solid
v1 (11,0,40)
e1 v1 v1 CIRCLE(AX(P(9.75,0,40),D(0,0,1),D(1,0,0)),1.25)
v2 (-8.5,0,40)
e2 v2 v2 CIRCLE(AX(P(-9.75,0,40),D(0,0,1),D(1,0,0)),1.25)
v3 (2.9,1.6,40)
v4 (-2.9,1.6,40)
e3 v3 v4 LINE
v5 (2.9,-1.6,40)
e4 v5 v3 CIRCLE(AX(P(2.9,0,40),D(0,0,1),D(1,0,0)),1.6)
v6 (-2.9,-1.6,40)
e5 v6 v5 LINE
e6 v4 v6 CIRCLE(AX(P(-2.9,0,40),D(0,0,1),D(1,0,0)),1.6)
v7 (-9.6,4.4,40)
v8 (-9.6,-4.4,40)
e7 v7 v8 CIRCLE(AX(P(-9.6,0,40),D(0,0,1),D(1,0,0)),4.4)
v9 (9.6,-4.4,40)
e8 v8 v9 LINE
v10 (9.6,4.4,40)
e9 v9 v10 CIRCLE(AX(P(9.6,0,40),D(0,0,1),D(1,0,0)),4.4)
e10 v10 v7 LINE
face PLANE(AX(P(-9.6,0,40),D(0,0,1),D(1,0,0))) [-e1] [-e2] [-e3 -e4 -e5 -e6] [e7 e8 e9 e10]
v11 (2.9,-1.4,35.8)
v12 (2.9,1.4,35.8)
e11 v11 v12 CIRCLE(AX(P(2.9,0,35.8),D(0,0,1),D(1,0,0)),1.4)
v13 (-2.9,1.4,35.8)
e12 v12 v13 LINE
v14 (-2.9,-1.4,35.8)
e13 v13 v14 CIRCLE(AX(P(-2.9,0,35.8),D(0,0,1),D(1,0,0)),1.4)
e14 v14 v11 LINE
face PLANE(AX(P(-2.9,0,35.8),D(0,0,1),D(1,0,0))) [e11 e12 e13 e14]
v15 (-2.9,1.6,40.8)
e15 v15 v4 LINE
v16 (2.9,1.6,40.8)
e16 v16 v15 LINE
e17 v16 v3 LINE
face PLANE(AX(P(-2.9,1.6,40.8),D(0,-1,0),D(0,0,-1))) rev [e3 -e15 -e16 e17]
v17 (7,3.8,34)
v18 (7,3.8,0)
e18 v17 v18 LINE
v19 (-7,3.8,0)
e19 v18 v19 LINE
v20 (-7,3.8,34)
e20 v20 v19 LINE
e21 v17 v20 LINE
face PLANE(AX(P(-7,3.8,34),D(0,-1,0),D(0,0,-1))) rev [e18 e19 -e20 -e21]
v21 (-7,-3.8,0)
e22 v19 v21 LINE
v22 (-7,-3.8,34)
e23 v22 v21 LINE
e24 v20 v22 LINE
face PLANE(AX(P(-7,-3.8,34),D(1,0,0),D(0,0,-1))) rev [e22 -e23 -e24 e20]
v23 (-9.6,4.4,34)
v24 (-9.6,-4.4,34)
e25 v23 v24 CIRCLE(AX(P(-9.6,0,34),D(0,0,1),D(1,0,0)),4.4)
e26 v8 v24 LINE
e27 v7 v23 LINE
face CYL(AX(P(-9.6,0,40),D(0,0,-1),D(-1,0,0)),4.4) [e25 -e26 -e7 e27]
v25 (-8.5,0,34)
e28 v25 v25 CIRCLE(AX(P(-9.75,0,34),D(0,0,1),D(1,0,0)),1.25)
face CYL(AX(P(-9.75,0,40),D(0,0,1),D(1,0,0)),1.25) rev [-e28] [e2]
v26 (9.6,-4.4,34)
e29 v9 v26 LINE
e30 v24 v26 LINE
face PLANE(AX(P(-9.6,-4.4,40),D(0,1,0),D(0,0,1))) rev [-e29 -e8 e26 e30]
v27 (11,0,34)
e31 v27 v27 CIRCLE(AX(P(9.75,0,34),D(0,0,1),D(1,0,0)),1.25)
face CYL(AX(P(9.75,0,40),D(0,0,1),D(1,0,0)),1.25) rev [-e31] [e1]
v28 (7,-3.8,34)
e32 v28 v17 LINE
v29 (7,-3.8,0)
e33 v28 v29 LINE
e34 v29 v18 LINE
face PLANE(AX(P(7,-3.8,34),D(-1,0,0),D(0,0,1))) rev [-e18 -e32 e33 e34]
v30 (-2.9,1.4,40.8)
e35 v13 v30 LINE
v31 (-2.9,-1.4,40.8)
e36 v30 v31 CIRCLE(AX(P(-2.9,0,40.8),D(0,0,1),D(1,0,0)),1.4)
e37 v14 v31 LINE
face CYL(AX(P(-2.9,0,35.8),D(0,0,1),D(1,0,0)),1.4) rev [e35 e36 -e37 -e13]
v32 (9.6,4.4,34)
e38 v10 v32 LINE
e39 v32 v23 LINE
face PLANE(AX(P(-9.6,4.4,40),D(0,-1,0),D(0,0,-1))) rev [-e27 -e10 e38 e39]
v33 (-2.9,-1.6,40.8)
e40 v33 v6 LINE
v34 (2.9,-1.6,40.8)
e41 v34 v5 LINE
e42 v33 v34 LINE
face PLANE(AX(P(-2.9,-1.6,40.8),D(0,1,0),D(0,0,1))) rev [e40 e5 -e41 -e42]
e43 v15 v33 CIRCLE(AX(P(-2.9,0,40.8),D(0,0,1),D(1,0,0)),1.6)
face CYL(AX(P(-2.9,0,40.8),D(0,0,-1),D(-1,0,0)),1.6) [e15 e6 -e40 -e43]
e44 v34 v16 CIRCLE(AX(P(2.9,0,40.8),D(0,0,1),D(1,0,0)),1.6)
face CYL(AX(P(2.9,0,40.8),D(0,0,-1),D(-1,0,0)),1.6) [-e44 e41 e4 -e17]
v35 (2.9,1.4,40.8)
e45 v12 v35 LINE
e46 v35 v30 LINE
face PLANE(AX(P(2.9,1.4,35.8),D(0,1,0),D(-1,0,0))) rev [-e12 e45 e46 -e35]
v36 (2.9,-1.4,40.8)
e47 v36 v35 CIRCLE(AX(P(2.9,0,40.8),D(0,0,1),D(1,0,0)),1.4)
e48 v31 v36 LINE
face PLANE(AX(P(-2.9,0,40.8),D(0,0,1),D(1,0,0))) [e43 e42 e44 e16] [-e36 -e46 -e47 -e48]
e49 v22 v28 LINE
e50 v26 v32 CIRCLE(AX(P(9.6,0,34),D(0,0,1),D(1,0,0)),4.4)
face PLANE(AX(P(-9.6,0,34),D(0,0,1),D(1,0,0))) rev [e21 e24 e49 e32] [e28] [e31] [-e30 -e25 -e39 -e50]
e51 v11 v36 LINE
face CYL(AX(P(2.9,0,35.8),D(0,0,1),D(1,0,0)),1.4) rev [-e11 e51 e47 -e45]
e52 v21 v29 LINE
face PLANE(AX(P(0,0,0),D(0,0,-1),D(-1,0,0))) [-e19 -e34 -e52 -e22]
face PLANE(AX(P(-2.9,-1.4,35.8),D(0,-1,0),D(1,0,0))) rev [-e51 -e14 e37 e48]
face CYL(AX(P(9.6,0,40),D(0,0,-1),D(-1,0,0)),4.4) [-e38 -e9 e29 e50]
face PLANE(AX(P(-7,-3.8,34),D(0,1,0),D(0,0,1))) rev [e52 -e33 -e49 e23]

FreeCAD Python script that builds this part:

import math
import FreeCAD as App
import Part
import Sketcher

V = App.Vector

doc = App.newDocument("Part")
body = doc.addObject("PartDesign::Body", "Body")

# Sketch on XY plane
sketch1 = body.newObject("Sketcher::SketchObject", "Sketch")
sketch1.AttachmentSupport = (doc.getObject("XY_Plane"), [""])
sketch1.MapMode = "FlatFace"
sketch1.addGeometry(Part.LineSegment(V(-7, 3.8, 0), V(-7, -3.8, 0)), False)
sketch1.addGeometry(Part.LineSegment(V(-7, -3.8, 0), V(7, -3.8, 0)), False)
sketch1.addGeometry(Part.LineSegment(V(7, -3.8, 0), V(7, 3.8, 0)), False)
sketch1.addGeometry(Part.LineSegment(V(7, 3.8, 0), V(-7, 3.8, 0)), False)
sketch1.addConstraint(Sketcher.Constraint("Coincident", 0, 2, 1, 1))
sketch1.addConstraint(Sketcher.Constraint("Coincident", 1, 2, 2, 1))
sketch1.addConstraint(Sketcher.Constraint("Coincident", 2, 2, 3, 1))
sketch1.addConstraint(Sketcher.Constraint("Coincident", 3, 2, 0, 1))
sketch1.addConstraint(Sketcher.Constraint("Vertical", 0))
sketch1.addConstraint(Sketcher.Constraint("Horizontal", 1))
sketch1.addConstraint(Sketcher.Constraint("Vertical", 2))
sketch1.addConstraint(Sketcher.Constraint("Horizontal", 3))
sketch1.addConstraint(Sketcher.Constraint("Symmetric", 0, 2, 2, 2, -1, 1))
sketch1.addConstraint(Sketcher.Constraint("DistanceX", 1, 1, 1, 2, 14.0))
sketch1.addConstraint(Sketcher.Constraint("DistanceY", 0, 2, 0, 1, 7.6))
pad1 = body.newObject("PartDesign::Pad", "Pad")
pad1.Profile = sketch1
pad1.Length = 34

# Sketch on XY plane
sketch2 = body.newObject("Sketcher::SketchObject", "Sketch001")
sketch2.AttachmentSupport = (doc.getObject("XY_Plane"), [""])
sketch2.MapMode = "FlatFace"
sketch2.AttachmentOffset = App.Placement(V(0, 0, 34), App.Rotation())
sketch2.addGeometry(Part.LineSegment(V(9.6, 4.4, 0), V(-9.6, 4.4, 0)), False)
sketch2.addGeometry(Part.ArcOfCircle(Part.Circle(V(-9.6, 0, 0), V(0, 0, 1), 4.4), math.radians(90), math.radians(270)), False)
sketch2.addGeometry(Part.LineSegment(V(-9.6, -4.4, 0), V(9.6, -4.4, 0)), False)
sketch2.addGeometry(Part.ArcOfCircle(Part.Circle(V(9.6, 0, 0), V(0, 0, 1), 4.4), math.radians(-90), math.radians(90)), False)
sketch2.addConstraint(Sketcher.Constraint("Tangent", 0, 2, 1, 1))
sketch2.addConstraint(Sketcher.Constraint("Tangent", 1, 2, 2, 1))
sketch2.addConstraint(Sketcher.Constraint("Tangent", 2, 2, 3, 1))
sketch2.addConstraint(Sketcher.Constraint("Tangent", 3, 2, 0, 1))
sketch2.addConstraint(Sketcher.Constraint("Horizontal", 0))
sketch2.addConstraint(Sketcher.Constraint("Horizontal", 2))
sketch2.addConstraint(Sketcher.Constraint("Symmetric", 1, 3, 3, 3, -1, 1))
sketch2.addConstraint(Sketcher.Constraint("Radius", 1, 4.4))
sketch2.addConstraint(Sketcher.Constraint("DistanceX", 0, 2, 0, 1, 19.2))
pad2 = body.newObject("PartDesign::Pad", "Pad001")
pad2.Profile = sketch2
pad2.Length = 6

# Sketch on XY plane
sketch3 = body.newObject("Sketcher::SketchObject", "Sketch002")
sketch3.AttachmentSupport = (doc.getObject("XY_Plane"), [""])
sketch3.MapMode = "FlatFace"
sketch3.AttachmentOffset = App.Placement(V(0, 0, 40), App.Rotation())
sketch3.addGeometry(Part.LineSegment(V(2.9, 1.6, 0), V(-2.9, 1.6, 0)), False)
sketch3.addGeometry(Part.ArcOfCircle(Part.Circle(V(-2.9, 0, 0), V(0, 0, 1), 1.6), math.radians(90), math.radians(270)), False)
sketch3.addGeometry(Part.LineSegment(V(-2.9, -1.6, 0), V(2.9, -1.6, 0)), False)
sketch3.addGeometry(Part.ArcOfCircle(Part.Circle(V(2.9, 0, 0), V(0, 0, 1), 1.6), math.radians(-90), math.radians(90)), False)
sketch3.addConstraint(Sketcher.Constraint("Tangent", 0, 2, 1, 1))
sketch3.addConstraint(Sketcher.Constraint("Tangent", 1, 2, 2, 1))
sketch3.addConstraint(Sketcher.Constraint("Tangent", 2, 2, 3, 1))
sketch3.addConstraint(Sketcher.Constraint("Tangent", 3, 2, 0, 1))
sketch3.addConstraint(Sketcher.Constraint("Horizontal", 0))
sketch3.addConstraint(Sketcher.Constraint("Horizontal", 2))
sketch3.addConstraint(Sketcher.Constraint("Symmetric", 1, 3, 3, 3, -1, 1))
sketch3.addConstraint(Sketcher.Constraint("Radius", 1, 1.6))
sketch3.addConstraint(Sketcher.Constraint("DistanceX", 0, 2, 0, 1, 5.8))
pad3 = body.newObject("PartDesign::Pad", "Pad002")
pad3.Profile = sketch3
pad3.Length = 0.8

# Sketch on XY plane
sketch4 = body.newObject("Sketcher::SketchObject", "Sketch003")
sketch4.AttachmentSupport = (doc.getObject("XY_Plane"), [""])
sketch4.MapMode = "FlatFace"
sketch4.AttachmentOffset = App.Placement(V(0, 0, 40.8), App.Rotation())
sketch4.addGeometry(Part.LineSegment(V(-2.9, -1.4, 0), V(2.9, -1.4, 0)), False)
sketch4.addGeometry(Part.ArcOfCircle(Part.Circle(V(2.9, 0, 0), V(0, 0, 1), 1.4), math.radians(-90), math.radians(90)), False)
sketch4.addGeometry(Part.LineSegment(V(2.9, 1.4, 0), V(-2.9, 1.4, 0)), False)
sketch4.addGeometry(Part.ArcOfCircle(Part.Circle(V(-2.9, 0, 0), V(0, 0, 1), 1.4), math.radians(90), math.radians(270)), False)
sketch4.addConstraint(Sketcher.Constraint("Tangent", 0, 2, 1, 1))
sketch4.addConstraint(Sketcher.Constraint("Tangent", 1, 2, 2, 1))
sketch4.addConstraint(Sketcher.Constraint("Tangent", 2, 2, 3, 1))
sketch4.addConstraint(Sketcher.Constraint("Tangent", 3, 2, 0, 1))
sketch4.addConstraint(Sketcher.Constraint("Horizontal", 0))
sketch4.addConstraint(Sketcher.Constraint("Horizontal", 2))
sketch4.addConstraint(Sketcher.Constraint("Symmetric", 1, 3, 3, 3, -1, 1))
sketch4.addConstraint(Sketcher.Constraint("Radius", 1, 1.4))
sketch4.addConstraint(Sketcher.Constraint("DistanceX", 0, 1, 0, 2, 5.8))
pocket1 = body.newObject("PartDesign::Pocket", "Pocket")
pocket1.Profile = sketch4
pocket1.Length = 5

# Sketch on XY plane
sketch5 = body.newObject("Sketcher::SketchObject", "Sketch004")
sketch5.AttachmentSupport = (doc.getObject("XY_Plane"), [""])
sketch5.MapMode = "FlatFace"
sketch5.AttachmentOffset = App.Placement(V(0, 0, 40), App.Rotation())
sketch5.addGeometry(Part.Circle(V(-9.75, 0, 0), V(0, 0, 1), 1.25), False)
sketch5.addGeometry(Part.Circle(V(9.75, 0, 0), V(0, 0, 1), 1.25), False)
sketch5.addConstraint(Sketcher.Constraint("Equal", 0, 1))
sketch5.addConstraint(Sketcher.Constraint("Symmetric", 0, 3, 1, 3, -1, 1))
sketch5.addConstraint(Sketcher.Constraint("PointOnObject", 0, 3, -1))
sketch5.addConstraint(Sketcher.Constraint("Diameter", 0, 2.5))
sketch5.addConstraint(Sketcher.Constraint("DistanceX", 0, 3, 1, 3, 19.5))
doc.recompute()
hole = body.newObject("PartDesign::Hole", "Hole")
hole.Profile = sketch5
hole.ThreadType = "None"
hole.Diameter = 2.5
hole.DepthType = "ThroughAll"

doc.recompute()
